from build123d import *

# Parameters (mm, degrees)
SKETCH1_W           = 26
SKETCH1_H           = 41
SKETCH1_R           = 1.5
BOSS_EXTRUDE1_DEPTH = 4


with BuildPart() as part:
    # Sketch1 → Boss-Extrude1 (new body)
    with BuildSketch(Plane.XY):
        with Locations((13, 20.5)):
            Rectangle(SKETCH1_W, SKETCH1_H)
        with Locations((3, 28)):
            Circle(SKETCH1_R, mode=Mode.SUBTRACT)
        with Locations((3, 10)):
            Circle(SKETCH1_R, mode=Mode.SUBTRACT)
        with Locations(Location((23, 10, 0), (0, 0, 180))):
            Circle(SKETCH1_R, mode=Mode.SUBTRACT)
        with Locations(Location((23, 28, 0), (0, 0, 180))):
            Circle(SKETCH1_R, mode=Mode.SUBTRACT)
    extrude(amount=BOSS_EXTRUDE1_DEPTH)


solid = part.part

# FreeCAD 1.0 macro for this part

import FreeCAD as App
import Part
import Sketcher

V = App.Vector

doc = App.newDocument("Part")
body = doc.addObject("PartDesign::Body", "Body")

# Sketch on XY plane
sketch1 = doc.addObject("Sketcher::SketchObject", "Sketch")
body.addObject(sketch1)
sketch1.AttachmentSupport = (doc.XY_Plane, [""])
sketch1.MapMode = "FlatFace"
sketch1.addGeometry(Part.LineSegment(V(0, 41, 0), V(0, 0, 0)), False)
sketch1.addGeometry(Part.LineSegment(V(0, 0, 0), V(26, 0, 0)), False)
sketch1.addGeometry(Part.LineSegment(V(26, 0, 0), V(26, 41, 0)), False)
sketch1.addGeometry(Part.LineSegment(V(26, 41, 0), V(0, 41, 0)), False)
sketch1.addGeometry(Part.Circle(V(3, 10, 0), V(0, 0, 1), 1.5), False)
sketch1.addGeometry(Part.Circle(V(23, 10, 0), V(0, 0, 1), 1.5), False)
sketch1.addGeometry(Part.Circle(V(3, 28, 0), V(0, 0, 1), 1.5), False)
sketch1.addGeometry(Part.Circle(V(23, 28, 0), V(0, 0, 1), 1.5), False)
sketch1.addConstraint(Sketcher.Constraint("Coincident", 0, 2, 1, 1))
sketch1.addConstraint(Sketcher.Constraint("Coincident", 1, 2, 2, 1))
sketch1.addConstraint(Sketcher.Constraint("Coincident", 2, 2, 3, 1))
sketch1.addConstraint(Sketcher.Constraint("Coincident", 3, 2, 0, 1))
sketch1.addConstraint(Sketcher.Constraint("Vertical", 0))
sketch1.addConstraint(Sketcher.Constraint("Horizontal", 1))
sketch1.addConstraint(Sketcher.Constraint("Vertical", 2))
sketch1.addConstraint(Sketcher.Constraint("Horizontal", 3))
sketch1.addConstraint(Sketcher.Constraint("Coincident", 0, 2, -1, 1))
sketch1.addConstraint(Sketcher.Constraint("Equal", 4, 5))
sketch1.addConstraint(Sketcher.Constraint("Equal", 5, 6))
sketch1.addConstraint(Sketcher.Constraint("Equal", 6, 7))
sketch1.addConstraint(Sketcher.Constraint("Horizontal", 4, 3, 5, 3))
sketch1.addConstraint(Sketcher.Constraint("Horizontal", 6, 3, 7, 3))
sketch1.addConstraint(Sketcher.Constraint("Vertical", 4, 3, 6, 3))
sketch1.addConstraint(Sketcher.Constraint("Vertical", 5, 3, 7, 3))
sketch1.addConstraint(Sketcher.Constraint("Diameter", 4, 3.0))
sketch1.addConstraint(Sketcher.Constraint("DistanceX", 1, 1, 1, 2, 26.0))
sketch1.addConstraint(Sketcher.Constraint("DistanceY", 0, 2, 0, 1, 41.0))
sketch1.addConstraint(Sketcher.Constraint("DistanceX", -1, 1, 4, 3, 3.0))
sketch1.addConstraint(Sketcher.Constraint("DistanceY", -1, 1, 4, 3, 10.0))
sketch1.addConstraint(Sketcher.Constraint("DistanceX", -1, 1, 5, 3, 23.0))
sketch1.addConstraint(Sketcher.Constraint("DistanceY", -1, 1, 6, 3, 28.0))
pad1 = doc.addObject("PartDesign::Pad", "Pad")
body.addObject(pad1)
pad1.Profile = sketch1
pad1.Length = 4

doc.recompute()
